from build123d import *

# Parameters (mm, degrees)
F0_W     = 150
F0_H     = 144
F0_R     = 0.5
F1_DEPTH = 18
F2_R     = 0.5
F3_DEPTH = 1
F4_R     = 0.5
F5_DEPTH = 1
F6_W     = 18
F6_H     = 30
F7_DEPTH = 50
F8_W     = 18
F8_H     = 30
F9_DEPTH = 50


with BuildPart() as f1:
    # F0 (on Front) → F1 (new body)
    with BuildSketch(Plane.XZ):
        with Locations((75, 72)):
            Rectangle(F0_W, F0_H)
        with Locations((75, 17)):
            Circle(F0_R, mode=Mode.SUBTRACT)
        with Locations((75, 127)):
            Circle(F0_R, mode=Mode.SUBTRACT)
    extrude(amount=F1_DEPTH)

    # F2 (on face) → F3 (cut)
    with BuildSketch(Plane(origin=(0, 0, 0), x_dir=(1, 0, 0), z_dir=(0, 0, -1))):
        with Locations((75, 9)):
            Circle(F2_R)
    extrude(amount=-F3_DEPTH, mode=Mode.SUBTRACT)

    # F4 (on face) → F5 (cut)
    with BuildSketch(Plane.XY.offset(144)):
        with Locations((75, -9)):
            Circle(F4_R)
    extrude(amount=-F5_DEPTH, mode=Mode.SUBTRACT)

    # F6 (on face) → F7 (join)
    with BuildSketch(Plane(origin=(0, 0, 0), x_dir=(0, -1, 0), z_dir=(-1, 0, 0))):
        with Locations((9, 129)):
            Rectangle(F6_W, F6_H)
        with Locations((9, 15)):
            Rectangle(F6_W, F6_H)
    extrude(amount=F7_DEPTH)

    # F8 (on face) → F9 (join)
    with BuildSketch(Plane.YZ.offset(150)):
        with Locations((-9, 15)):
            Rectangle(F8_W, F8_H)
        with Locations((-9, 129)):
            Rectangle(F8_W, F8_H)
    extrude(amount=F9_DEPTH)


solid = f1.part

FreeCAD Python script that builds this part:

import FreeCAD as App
import Part
import Sketcher

doc = App.newDocument("Part")
body = doc.addObject("PartDesign::Body", "Body")

sketch1 = body.newObject("Sketcher::SketchObject", "Sketch")
sketch1.AttachmentSupport = (doc.getObject("XZ_Plane"), [""])
sketch1.MapMode = "FlatFace"
sketch1.addGeometry([
    Part.LineSegment(App.Vector(0, 144, 0), App.Vector(0, 0, 0)),
    Part.LineSegment(App.Vector(0, 0, 0), App.Vector(150, 0, 0)),
    Part.LineSegment(App.Vector(150, 0, 0), App.Vector(150, 144, 0)),
    Part.LineSegment(App.Vector(150, 144, 0), App.Vector(0, 144, 0)),
    Part.Circle(App.Vector(75, 17, 0), App.Vector(0, 0, 1), 0.5),
    Part.Circle(App.Vector(75, 127, 0), App.Vector(0, 0, 1), 0.5),
], False)
sketch1.addConstraint([
    Sketcher.Constraint("Coincident", 0, 2, 1, 1),
    Sketcher.Constraint("Coincident", 1, 2, 2, 1),
    Sketcher.Constraint("Coincident", 2, 2, 3, 1),
    Sketcher.Constraint("Coincident", 3, 2, 0, 1),
    Sketcher.Constraint("Vertical", 0),
    Sketcher.Constraint("Horizontal", 1),
    Sketcher.Constraint("Vertical", 2),
    Sketcher.Constraint("Horizontal", 3),
    Sketcher.Constraint("Coincident", 0, 2, -1, 1),
    Sketcher.Constraint("Equal", 4, 5),
    Sketcher.Constraint("Vertical", 4, 3, 5, 3),
    Sketcher.Constraint("Diameter", 4, 1.0),
    Sketcher.Constraint("DistanceX", 1, 1, 1, 2, 150.0),
    Sketcher.Constraint("DistanceY", 0, 2, 0, 1, 144.0),
    Sketcher.Constraint("DistanceX", -1, 1, 4, 3, 75.0),
    Sketcher.Constraint("DistanceY", -1, 1, 4, 3, 17.0),
    Sketcher.Constraint("DistanceY", -1, 1, 5, 3, 127.0),
])
pad1 = body.newObject("PartDesign::Pad", "Pad")
pad1.Profile = sketch1
pad1.Length = 18

sketch2 = body.newObject("Sketcher::SketchObject", "Sketch001")
sketch2.AttachmentSupport = (doc.getObject("XY_Plane"), [""])
sketch2.MapMode = "FlatFace"
sketch2.addGeometry(Part.Circle(App.Vector(75, -9, 0), App.Vector(0, 0, 1), 0.5), False)
sketch2.addConstraint([
    Sketcher.Constraint("Diameter", 0, 1.0),
    Sketcher.Constraint("DistanceX", -1, 1, 0, 3, 75.0),
    Sketcher.Constraint("DistanceY", 0, 3, -1, 1, 9.0),
])
pocket1 = body.newObject("PartDesign::Pocket", "Pocket")
pocket1.Profile = sketch2
pocket1.Length = 1
pocket1.Reversed = True

sketch3 = body.newObject("Sketcher::SketchObject", "Sketch002")
sketch3.AttachmentSupport = (doc.getObject("XY_Plane"), [""])
sketch3.MapMode = "FlatFace"
sketch3.AttachmentOffset = App.Placement(App.Vector(0, 0, 144), App.Rotation())
sketch3.addGeometry(Part.Circle(App.Vector(75, -9, 0), App.Vector(0, 0, 1), 0.5), False)
sketch3.addConstraint([
    Sketcher.Constraint("Diameter", 0, 1.0),
    Sketcher.Constraint("DistanceX", -1, 1, 0, 3, 75.0),
    Sketcher.Constraint("DistanceY", 0, 3, -1, 1, 9.0),
])
pocket2 = body.newObject("PartDesign::Pocket", "Pocket001")
pocket2.Profile = sketch3
pocket2.Length = 1

sketch4 = body.newObject("Sketcher::SketchObject", "Sketch003")
sketch4.AttachmentSupport = (doc.getObject("YZ_Plane"), [""])
sketch4.MapMode = "FlatFace"
sketch4.addGeometry([
    Part.LineSegment(App.Vector(0, 144, 0), App.Vector(0, 114, 0)),
    Part.LineSegment(App.Vector(0, 114, 0), App.Vector(-18, 114, 0)),
    Part.LineSegment(App.Vector(-18, 114, 0), App.Vector(-18, 144, 0)),
    Part.LineSegment(App.Vector(-18, 144, 0), App.Vector(0, 144, 0)),
    Part.LineSegment(App.Vector(0, 30, 0), App.Vector(0, 0, 0)),
    Part.LineSegment(App.Vector(0, 0, 0), App.Vector(-18, 0, 0)),
    Part.LineSegment(App.Vector(-18, 0, 0), App.Vector(-18, 30, 0)),
    Part.LineSegment(App.Vector(-18, 30, 0), App.Vector(0, 30, 0)),
], False)
sketch4.addConstraint([
    Sketcher.Constraint("Coincident", 0, 2, 1, 1),
    Sketcher.Constraint("Coincident", 1, 2, 2, 1),
    Sketcher.Constraint("Coincident", 2, 2, 3, 1),
    Sketcher.Constraint("Coincident", 3, 2, 0, 1),
    Sketcher.Constraint("Coincident", 4, 2, 5, 1),
    Sketcher.Constraint("Coincident", 5, 2, 6, 1),
    Sketcher.Constraint("Coincident", 6, 2, 7, 1),
    Sketcher.Constraint("Coincident", 7, 2, 4, 1),
    Sketcher.Constraint("Vertical", 0),
    Sketcher.Constraint("Horizontal", 1),
    Sketcher.Constraint("Vertical", 2),
    Sketcher.Constraint("Horizontal", 3),
    Sketcher.Constraint("Vertical", 4),
    Sketcher.Constraint("Horizontal", 5),
    Sketcher.Constraint("Vertical", 6),
    Sketcher.Constraint("Horizontal", 7),
    Sketcher.Constraint("Coincident", 4, 2, -1, 1),
    Sketcher.Constraint("PointOnObject", 0, 2, -2),
    Sketcher.Constraint("Vertical", 2, 2, 5, 2),
    Sketcher.Constraint("Equal", 2, 4),
    Sketcher.Constraint("DistanceX", 1, 2, 1, 1, 18.0),
    Sketcher.Constraint("DistanceY", 0, 2, 0, 1, 30.0),
    Sketcher.Constraint("DistanceY", -1, 1, 0, 2, 114.0),
])
pad2 = body.newObject("PartDesign::Pad", "Pad001")
pad2.Profile = sketch4
pad2.Length = 50
pad2.Reversed = True

sketch5 = body.newObject("Sketcher::SketchObject", "Sketch004")
sketch5.AttachmentSupport = (doc.getObject("YZ_Plane"), [""])
sketch5.MapMode = "FlatFace"
sketch5.AttachmentOffset = App.Placement(App.Vector(0, 0, 150), App.Rotation())
sketch5.addGeometry([
    Part.LineSegment(App.Vector(-18, 30, 0), App.Vector(-18, 0, 0)),
    Part.LineSegment(App.Vector(-18, 0, 0), App.Vector(0, 0, 0)),
    Part.LineSegment(App.Vector(0, 0, 0), App.Vector(0, 30, 0)),
    Part.LineSegment(App.Vector(0, 30, 0), App.Vector(-18, 30, 0)),
    Part.LineSegment(App.Vector(-18, 144, 0), App.Vector(-18, 114, 0)),
    Part.LineSegment(App.Vector(-18, 114, 0), App.Vector(0, 114, 0)),
    Part.LineSegment(App.Vector(0, 114, 0), App.Vector(0, 144, 0)),
    Part.LineSegment(App.Vector(0, 144, 0), App.Vector(-18, 144, 0)),
], False)
sketch5.addConstraint([
    Sketcher.Constraint("Coincident", 0, 2, 1, 1),
    Sketcher.Constraint("Coincident", 1, 2, 2, 1),
    Sketcher.Constraint("Coincident", 2, 2, 3, 1),
    Sketcher.Constraint("Coincident", 3, 2, 0, 1),
    Sketcher.Constraint("Coincident", 4, 2, 5, 1),
    Sketcher.Constraint("Coincident", 5, 2, 6, 1),
    Sketcher.Constraint("Coincident", 6, 2, 7, 1),
    Sketcher.Constraint("Coincident", 7, 2, 4, 1),
    Sketcher.Constraint("Vertical", 0),
    Sketcher.Constraint("Horizontal", 1),
    Sketcher.Constraint("Vertical", 2),
    Sketcher.Constraint("Horizontal", 3),
    Sketcher.Constraint("Vertical", 4),
    Sketcher.Constraint("Horizontal", 5),
    Sketcher.Constraint("Vertical", 6),
    Sketcher.Constraint("Horizontal", 7),
    Sketcher.Constraint("Coincident", 1, 2, -1, 1),
    Sketcher.Constraint("PointOnObject", 5, 2, -2),
    Sketcher.Constraint("Vertical", 3, 2, 4, 2),
    Sketcher.Constraint("Equal", 2, 4),
    Sketcher.Constraint("DistanceX", 1, 1, 1, 2, 18.0),
    Sketcher.Constraint("DistanceY", 0, 2, 0, 1, 30.0),
    Sketcher.Constraint("DistanceY", -1, 1, 4, 2, 114.0),
])
pad3 = body.newObject("PartDesign::Pad", "Pad002")
pad3.Profile = sketch5
pad3.Length = 50

doc.recompute()
